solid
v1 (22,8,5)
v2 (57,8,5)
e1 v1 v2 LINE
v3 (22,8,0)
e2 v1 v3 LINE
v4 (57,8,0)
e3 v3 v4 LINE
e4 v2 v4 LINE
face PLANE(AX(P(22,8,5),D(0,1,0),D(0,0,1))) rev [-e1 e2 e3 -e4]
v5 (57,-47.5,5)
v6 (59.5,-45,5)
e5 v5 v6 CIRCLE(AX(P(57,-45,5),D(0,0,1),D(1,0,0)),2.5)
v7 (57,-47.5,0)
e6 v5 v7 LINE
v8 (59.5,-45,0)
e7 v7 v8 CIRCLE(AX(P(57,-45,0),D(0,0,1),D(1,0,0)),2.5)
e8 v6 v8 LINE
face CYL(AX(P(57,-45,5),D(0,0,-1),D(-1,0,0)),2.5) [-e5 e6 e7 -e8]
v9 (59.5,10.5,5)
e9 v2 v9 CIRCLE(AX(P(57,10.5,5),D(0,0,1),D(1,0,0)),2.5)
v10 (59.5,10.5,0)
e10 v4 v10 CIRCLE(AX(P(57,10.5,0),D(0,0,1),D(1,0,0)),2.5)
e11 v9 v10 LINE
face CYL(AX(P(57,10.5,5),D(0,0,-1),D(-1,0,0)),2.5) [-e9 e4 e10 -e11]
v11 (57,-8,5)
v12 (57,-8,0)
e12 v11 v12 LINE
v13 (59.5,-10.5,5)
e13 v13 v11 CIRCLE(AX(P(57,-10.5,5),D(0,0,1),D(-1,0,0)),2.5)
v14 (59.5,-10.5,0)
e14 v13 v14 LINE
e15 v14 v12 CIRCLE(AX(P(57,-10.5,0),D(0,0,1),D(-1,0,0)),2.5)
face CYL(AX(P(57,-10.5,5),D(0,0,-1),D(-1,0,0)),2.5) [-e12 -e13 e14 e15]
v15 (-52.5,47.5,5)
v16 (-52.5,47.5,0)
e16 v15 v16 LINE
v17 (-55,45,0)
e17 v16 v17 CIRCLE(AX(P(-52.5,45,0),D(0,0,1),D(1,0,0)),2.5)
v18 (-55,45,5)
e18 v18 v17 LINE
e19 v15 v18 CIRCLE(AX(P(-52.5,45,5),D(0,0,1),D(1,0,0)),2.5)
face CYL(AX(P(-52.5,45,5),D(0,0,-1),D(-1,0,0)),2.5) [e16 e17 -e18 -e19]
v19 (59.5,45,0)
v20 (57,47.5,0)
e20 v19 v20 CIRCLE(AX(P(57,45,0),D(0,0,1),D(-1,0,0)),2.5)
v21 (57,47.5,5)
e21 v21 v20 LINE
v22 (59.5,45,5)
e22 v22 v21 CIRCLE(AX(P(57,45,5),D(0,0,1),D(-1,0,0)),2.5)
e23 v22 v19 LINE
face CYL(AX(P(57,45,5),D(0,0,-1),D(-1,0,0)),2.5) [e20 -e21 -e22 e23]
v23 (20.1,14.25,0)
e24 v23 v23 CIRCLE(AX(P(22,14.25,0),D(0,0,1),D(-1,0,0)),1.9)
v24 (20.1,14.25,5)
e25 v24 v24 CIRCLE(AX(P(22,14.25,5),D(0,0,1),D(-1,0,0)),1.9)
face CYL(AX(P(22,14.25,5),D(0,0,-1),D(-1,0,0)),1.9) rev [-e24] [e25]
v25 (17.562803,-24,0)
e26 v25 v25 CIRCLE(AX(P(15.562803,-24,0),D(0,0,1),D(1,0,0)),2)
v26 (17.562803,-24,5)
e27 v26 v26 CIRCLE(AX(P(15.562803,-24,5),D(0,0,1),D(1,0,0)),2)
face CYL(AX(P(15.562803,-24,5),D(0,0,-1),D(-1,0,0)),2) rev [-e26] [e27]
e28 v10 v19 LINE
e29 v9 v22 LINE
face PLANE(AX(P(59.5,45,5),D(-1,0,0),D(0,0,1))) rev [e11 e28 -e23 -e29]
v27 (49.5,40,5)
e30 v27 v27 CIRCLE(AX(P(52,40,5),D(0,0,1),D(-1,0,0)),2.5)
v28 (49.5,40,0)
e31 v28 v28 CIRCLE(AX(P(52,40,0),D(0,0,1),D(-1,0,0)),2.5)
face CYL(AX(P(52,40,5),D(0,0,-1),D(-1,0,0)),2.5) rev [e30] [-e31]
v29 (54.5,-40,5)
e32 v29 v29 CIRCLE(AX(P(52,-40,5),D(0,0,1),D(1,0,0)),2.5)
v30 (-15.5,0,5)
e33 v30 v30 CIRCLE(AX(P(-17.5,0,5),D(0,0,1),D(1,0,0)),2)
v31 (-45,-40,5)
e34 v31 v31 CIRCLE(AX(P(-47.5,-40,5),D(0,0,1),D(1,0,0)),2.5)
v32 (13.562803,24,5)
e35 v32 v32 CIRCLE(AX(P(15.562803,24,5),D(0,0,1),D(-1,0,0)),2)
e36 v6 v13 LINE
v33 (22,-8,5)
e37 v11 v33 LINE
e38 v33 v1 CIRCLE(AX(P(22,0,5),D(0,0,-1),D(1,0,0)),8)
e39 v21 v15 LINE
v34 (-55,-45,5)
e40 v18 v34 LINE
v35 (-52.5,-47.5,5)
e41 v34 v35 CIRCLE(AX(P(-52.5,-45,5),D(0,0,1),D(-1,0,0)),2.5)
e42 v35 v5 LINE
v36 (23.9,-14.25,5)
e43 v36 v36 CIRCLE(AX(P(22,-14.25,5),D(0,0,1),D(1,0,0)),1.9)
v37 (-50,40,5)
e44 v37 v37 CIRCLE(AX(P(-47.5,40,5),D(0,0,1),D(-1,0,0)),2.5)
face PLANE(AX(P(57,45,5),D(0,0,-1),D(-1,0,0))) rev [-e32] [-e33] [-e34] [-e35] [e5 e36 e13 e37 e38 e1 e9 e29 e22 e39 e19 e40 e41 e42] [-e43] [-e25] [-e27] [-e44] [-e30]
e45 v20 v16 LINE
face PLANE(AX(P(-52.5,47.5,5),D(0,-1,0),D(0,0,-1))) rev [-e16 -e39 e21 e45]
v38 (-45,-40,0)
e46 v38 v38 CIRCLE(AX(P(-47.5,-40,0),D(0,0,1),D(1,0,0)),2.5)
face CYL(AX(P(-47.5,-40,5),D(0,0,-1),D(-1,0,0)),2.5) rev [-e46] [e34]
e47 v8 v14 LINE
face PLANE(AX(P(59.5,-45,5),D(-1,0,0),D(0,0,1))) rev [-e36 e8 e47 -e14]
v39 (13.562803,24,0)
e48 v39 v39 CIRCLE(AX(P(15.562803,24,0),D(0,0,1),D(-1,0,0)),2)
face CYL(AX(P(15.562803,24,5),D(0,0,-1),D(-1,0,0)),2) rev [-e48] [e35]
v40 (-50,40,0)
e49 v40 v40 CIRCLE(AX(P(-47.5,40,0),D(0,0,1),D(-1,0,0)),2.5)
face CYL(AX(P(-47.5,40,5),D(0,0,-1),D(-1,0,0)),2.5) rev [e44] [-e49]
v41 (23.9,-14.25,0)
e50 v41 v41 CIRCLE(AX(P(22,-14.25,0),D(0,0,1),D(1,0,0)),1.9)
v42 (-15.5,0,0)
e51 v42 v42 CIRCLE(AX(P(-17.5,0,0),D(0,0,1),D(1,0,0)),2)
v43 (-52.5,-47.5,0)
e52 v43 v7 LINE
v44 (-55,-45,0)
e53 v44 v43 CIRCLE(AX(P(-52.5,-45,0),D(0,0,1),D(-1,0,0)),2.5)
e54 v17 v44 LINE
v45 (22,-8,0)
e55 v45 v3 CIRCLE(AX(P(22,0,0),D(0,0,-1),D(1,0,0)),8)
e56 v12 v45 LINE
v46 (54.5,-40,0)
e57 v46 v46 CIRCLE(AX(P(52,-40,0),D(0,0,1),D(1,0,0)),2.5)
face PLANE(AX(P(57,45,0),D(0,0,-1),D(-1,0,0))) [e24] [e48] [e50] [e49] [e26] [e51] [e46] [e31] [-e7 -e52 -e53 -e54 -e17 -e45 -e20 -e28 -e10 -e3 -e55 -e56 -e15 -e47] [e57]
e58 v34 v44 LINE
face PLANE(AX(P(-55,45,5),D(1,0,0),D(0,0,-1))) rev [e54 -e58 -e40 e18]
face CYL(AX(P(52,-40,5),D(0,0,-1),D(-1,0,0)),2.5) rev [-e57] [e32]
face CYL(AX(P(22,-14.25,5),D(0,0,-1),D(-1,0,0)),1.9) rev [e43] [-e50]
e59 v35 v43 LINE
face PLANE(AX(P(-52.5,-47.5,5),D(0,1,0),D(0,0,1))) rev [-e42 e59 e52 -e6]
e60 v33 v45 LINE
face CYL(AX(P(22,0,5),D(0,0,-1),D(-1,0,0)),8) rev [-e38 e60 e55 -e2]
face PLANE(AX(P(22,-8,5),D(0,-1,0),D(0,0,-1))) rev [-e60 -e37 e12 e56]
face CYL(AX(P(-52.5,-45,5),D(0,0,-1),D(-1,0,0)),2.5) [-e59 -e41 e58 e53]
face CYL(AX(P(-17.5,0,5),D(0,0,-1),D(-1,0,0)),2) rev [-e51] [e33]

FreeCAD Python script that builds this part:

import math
import FreeCAD as App
import Part
import Sketcher
Q = App.Units.Quantity

doc = App.newDocument("Part")
body = doc.addObject("PartDesign::Body", "Body")

sketch1 = body.newObject("Sketcher::SketchObject", "Sketch")
sketch1.AttachmentSupport = (doc.getObject("XY_Plane"), [""])
sketch1.MapMode = "FlatFace"
sketch1.addGeometry(Part.LineSegment(App.Vector(-55, 45, 0), App.Vector(-55, -45, 0)), False)
sketch1.addGeometry(Part.ArcOfCircle(Part.Circle(App.Vector(-52.5, -45, 0), App.Vector(0, 0, 1), 2.5), math.radians(180), math.radians(270)), False)
sketch1.addGeometry(Part.LineSegment(App.Vector(-52.5, -47.5, 0), App.Vector(57, -47.5, 0)), False)
sketch1.addGeometry(Part.ArcOfCircle(Part.Circle(App.Vector(57, -45, 0), App.Vector(0, 0, 1), 2.5), math.radians(-90), math.radians(0)), False)
sketch1.addGeometry(Part.LineSegment(App.Vector(59.5, -45, 0), App.Vector(59.5, -10.5, 0)), False)
sketch1.addGeometry(Part.ArcOfCircle(Part.Circle(App.Vector(57, -10.5, 0), App.Vector(0, 0, 1), 2.5), math.radians(0), math.radians(90)), False)
sketch1.addGeometry(Part.LineSegment(App.Vector(57, -8, 0), App.Vector(22, -8, 0)), False)
sketch1.addGeometry(Part.ArcOfCircle(Part.Circle(App.Vector(22, 0, 0), App.Vector(0, 0, 1), 8), math.radians(90), math.radians(270)), False)
sketch1.addGeometry(Part.LineSegment(App.Vector(22, 8, 0), App.Vector(57, 8, 0)), False)
sketch1.addGeometry(Part.ArcOfCircle(Part.Circle(App.Vector(57, 10.5, 0), App.Vector(0, 0, 1), 2.5), math.radians(-90), math.radians(0)), False)
sketch1.addGeometry(Part.LineSegment(App.Vector(59.5, 10.5, 0), App.Vector(59.5, 45, 0)), False)
sketch1.addGeometry(Part.ArcOfCircle(Part.Circle(App.Vector(57, 45, 0), App.Vector(0, 0, 1), 2.5), math.radians(0), math.radians(90)), False)
sketch1.addGeometry(Part.LineSegment(App.Vector(57, 47.5, 0), App.Vector(-52.5, 47.5, 0)), False)
sketch1.addGeometry(Part.ArcOfCircle(Part.Circle(App.Vector(-52.5, 45, 0), App.Vector(0, 0, 1), 2.5), math.radians(90), math.radians(180)), False)
sketch1.addGeometry(Part.Circle(App.Vector(-47.5, -40, 0), App.Vector(0, 0, 1), 2.5), False)
sketch1.addGeometry(Part.Circle(App.Vector(15.6, -24, 0), App.Vector(0, 0, 1), 2), False)
sketch1.addGeometry(Part.Circle(App.Vector(52, -40, 0), App.Vector(0, 0, 1), 2.5), False)
sketch1.addGeometry(Part.Circle(App.Vector(22, -14.2, 0), App.Vector(0, 0, 1), 1.9), False)
sketch1.addGeometry(Part.Circle(App.Vector(-17.5, 0, 0), App.Vector(0, 0, 1), 2), False)
sketch1.addGeometry(Part.Circle(App.Vector(-47.5, 40, 0), App.Vector(0, 0, 1), 2.5), False)
sketch1.addGeometry(Part.Circle(App.Vector(22, 14.2, 0), App.Vector(0, 0, 1), 1.9), False)
sketch1.addGeometry(Part.Circle(App.Vector(15.6, 24, 0), App.Vector(0, 0, 1), 2), False)
sketch1.addGeometry(Part.Circle(App.Vector(52, 40, 0), App.Vector(0, 0, 1), 2.5), False)
sketch1.addConstraint(Sketcher.Constraint("Tangent", 0, 2, 1, 1))
sketch1.addConstraint(Sketcher.Constraint("Tangent", 1, 2, 2, 1))
sketch1.addConstraint(Sketcher.Constraint("Tangent", 2, 2, 3, 1))
sketch1.addConstraint(Sketcher.Constraint("Tangent", 3, 2, 4, 1))
sketch1.addConstraint(Sketcher.Constraint("Tangent", 4, 2, 5, 1))
sketch1.addConstraint(Sketcher.Constraint("Tangent", 5, 2, 6, 1))
sketch1.addConstraint(Sketcher.Constraint("Tangent", 6, 2, 7, 2))
sketch1.addConstraint(Sketcher.Constraint("Tangent", 7, 1, 8, 1))
sketch1.addConstraint(Sketcher.Constraint("Tangent", 8, 2, 9, 1))
sketch1.addConstraint(Sketcher.Constraint("Tangent", 9, 2, 10, 1))
sketch1.addConstraint(Sketcher.Constraint("Tangent", 10, 2, 11, 1))
sketch1.addConstraint(Sketcher.Constraint("Tangent", 11, 2, 12, 1))
sketch1.addConstraint(Sketcher.Constraint("Tangent", 12, 2, 13, 1))
sketch1.addConstraint(Sketcher.Constraint("Tangent", 13, 2, 0, 1))
sketch1.addConstraint(Sketcher.Constraint("Vertical", 0))
sketch1.addConstraint(Sketcher.Constraint("Horizontal", 2))
sketch1.addConstraint(Sketcher.Constraint("Vertical", 4))
sketch1.addConstraint(Sketcher.Constraint("Horizontal", 6))
sketch1.addConstraint(Sketcher.Constraint("Horizontal", 8))
sketch1.addConstraint(Sketcher.Constraint("Vertical", 10))
sketch1.addConstraint(Sketcher.Constraint("Horizontal", 12))
sketch1.addConstraint(Sketcher.Constraint("Equal", 1, 3))
sketch1.addConstraint(Sketcher.Constraint("Equal", 3, 5))
sketch1.addConstraint(Sketcher.Constraint("Equal", 5, 9))
sketch1.addConstraint(Sketcher.Constraint("Equal", 9, 11))
sketch1.addConstraint(Sketcher.Constraint("Equal", 11, 13))
sketch1.addConstraint(Sketcher.Constraint("Equal", 13, 14))
sketch1.addConstraint(Sketcher.Constraint("Equal", 14, 16))
sketch1.addConstraint(Sketcher.Constraint("Equal", 15, 18))
sketch1.addConstraint(Sketcher.Constraint("Equal", 16, 19))
sketch1.addConstraint(Sketcher.Constraint("Equal", 17, 20))
sketch1.addConstraint(Sketcher.Constraint("Equal", 18, 21))
sketch1.addConstraint(Sketcher.Constraint("Equal", 19, 22))
sketch1.addConstraint(Sketcher.Constraint("Symmetric", 5, 3, 9, 3, -1))
sketch1.addConstraint(Sketcher.Constraint("Symmetric", 14, 3, 19, 3, -1))
sketch1.addConstraint(Sketcher.Constraint("Symmetric", 17, 3, 20, 3, -1))
sketch1.addConstraint(Sketcher.Constraint("Symmetric", 15, 3, 21, 3, -1))
sketch1.addConstraint(Sketcher.Constraint("Symmetric", 16, 3, 22, 3, -1))
sketch1.addConstraint(Sketcher.Constraint("PointOnObject", 18, 3, -1))
sketch1.addConstraint(Sketcher.Constraint("Horizontal", 14, 3, 16, 3))
sketch1.addConstraint(Sketcher.Constraint("Vertical", 7, 3, 17, 3))
sketch1.addConstraint(Sketcher.Constraint("Equal", 4, 10))
sketch1.addConstraint(Sketcher.Constraint("Diameter", 14, Q("5 mm")))
sketch1.addConstraint(Sketcher.Constraint("Diameter", 15, Q("4 mm")))
sketch1.addConstraint(Sketcher.Constraint("Radius", 7, Q("8 mm")))
sketch1.addConstraint(Sketcher.Constraint("Diameter", 17, Q("3.8 mm")))
sketch1.addConstraint(Sketcher.Constraint("DistanceX", 6, 2, 6, 1, Q("35 mm")))
sketch1.addConstraint(Sketcher.Constraint("DistanceY", 0, 2, 0, 1, Q("90 mm")))
sketch1.addConstraint(Sketcher.Constraint("DistanceX", 2, 1, 2, 2, Q("109.5 mm")))
sketch1.addConstraint(Sketcher.Constraint("DistanceX", -1, 1, 3, 3, Q("57 mm")))
sketch1.addConstraint(Sketcher.Constraint("DistanceY", 14, 3, -1, 1, Q("40 mm")))
sketch1.addConstraint(Sketcher.Constraint("DistanceY", 15, 3, -1, 1, Q("24 mm")))
sketch1.addConstraint(Sketcher.Constraint("DistanceX", -1, 1, 16, 3, Q("52 mm")))
sketch1.addConstraint(Sketcher.Constraint("DistanceX", 1, 3, 14, 3, Q("5 mm")))
sketch1.addConstraint(Sketcher.Constraint("DistanceX", 14, 3, 18, 3, Q("30 mm")))
sketch1.addConstraint(Sketcher.Constraint("DistanceY", 17, 3, 20, 3, Q("28.5 mm")))
sketch1.addConstraint(Sketcher.Constraint("DistanceX", -1, 1, 15, 3, Q("15.562803 mm")))
pad1 = body.newObject("PartDesign::Pad", "Pad")
pad1.Profile = sketch1
pad1.Length = 5

doc.recompute()
